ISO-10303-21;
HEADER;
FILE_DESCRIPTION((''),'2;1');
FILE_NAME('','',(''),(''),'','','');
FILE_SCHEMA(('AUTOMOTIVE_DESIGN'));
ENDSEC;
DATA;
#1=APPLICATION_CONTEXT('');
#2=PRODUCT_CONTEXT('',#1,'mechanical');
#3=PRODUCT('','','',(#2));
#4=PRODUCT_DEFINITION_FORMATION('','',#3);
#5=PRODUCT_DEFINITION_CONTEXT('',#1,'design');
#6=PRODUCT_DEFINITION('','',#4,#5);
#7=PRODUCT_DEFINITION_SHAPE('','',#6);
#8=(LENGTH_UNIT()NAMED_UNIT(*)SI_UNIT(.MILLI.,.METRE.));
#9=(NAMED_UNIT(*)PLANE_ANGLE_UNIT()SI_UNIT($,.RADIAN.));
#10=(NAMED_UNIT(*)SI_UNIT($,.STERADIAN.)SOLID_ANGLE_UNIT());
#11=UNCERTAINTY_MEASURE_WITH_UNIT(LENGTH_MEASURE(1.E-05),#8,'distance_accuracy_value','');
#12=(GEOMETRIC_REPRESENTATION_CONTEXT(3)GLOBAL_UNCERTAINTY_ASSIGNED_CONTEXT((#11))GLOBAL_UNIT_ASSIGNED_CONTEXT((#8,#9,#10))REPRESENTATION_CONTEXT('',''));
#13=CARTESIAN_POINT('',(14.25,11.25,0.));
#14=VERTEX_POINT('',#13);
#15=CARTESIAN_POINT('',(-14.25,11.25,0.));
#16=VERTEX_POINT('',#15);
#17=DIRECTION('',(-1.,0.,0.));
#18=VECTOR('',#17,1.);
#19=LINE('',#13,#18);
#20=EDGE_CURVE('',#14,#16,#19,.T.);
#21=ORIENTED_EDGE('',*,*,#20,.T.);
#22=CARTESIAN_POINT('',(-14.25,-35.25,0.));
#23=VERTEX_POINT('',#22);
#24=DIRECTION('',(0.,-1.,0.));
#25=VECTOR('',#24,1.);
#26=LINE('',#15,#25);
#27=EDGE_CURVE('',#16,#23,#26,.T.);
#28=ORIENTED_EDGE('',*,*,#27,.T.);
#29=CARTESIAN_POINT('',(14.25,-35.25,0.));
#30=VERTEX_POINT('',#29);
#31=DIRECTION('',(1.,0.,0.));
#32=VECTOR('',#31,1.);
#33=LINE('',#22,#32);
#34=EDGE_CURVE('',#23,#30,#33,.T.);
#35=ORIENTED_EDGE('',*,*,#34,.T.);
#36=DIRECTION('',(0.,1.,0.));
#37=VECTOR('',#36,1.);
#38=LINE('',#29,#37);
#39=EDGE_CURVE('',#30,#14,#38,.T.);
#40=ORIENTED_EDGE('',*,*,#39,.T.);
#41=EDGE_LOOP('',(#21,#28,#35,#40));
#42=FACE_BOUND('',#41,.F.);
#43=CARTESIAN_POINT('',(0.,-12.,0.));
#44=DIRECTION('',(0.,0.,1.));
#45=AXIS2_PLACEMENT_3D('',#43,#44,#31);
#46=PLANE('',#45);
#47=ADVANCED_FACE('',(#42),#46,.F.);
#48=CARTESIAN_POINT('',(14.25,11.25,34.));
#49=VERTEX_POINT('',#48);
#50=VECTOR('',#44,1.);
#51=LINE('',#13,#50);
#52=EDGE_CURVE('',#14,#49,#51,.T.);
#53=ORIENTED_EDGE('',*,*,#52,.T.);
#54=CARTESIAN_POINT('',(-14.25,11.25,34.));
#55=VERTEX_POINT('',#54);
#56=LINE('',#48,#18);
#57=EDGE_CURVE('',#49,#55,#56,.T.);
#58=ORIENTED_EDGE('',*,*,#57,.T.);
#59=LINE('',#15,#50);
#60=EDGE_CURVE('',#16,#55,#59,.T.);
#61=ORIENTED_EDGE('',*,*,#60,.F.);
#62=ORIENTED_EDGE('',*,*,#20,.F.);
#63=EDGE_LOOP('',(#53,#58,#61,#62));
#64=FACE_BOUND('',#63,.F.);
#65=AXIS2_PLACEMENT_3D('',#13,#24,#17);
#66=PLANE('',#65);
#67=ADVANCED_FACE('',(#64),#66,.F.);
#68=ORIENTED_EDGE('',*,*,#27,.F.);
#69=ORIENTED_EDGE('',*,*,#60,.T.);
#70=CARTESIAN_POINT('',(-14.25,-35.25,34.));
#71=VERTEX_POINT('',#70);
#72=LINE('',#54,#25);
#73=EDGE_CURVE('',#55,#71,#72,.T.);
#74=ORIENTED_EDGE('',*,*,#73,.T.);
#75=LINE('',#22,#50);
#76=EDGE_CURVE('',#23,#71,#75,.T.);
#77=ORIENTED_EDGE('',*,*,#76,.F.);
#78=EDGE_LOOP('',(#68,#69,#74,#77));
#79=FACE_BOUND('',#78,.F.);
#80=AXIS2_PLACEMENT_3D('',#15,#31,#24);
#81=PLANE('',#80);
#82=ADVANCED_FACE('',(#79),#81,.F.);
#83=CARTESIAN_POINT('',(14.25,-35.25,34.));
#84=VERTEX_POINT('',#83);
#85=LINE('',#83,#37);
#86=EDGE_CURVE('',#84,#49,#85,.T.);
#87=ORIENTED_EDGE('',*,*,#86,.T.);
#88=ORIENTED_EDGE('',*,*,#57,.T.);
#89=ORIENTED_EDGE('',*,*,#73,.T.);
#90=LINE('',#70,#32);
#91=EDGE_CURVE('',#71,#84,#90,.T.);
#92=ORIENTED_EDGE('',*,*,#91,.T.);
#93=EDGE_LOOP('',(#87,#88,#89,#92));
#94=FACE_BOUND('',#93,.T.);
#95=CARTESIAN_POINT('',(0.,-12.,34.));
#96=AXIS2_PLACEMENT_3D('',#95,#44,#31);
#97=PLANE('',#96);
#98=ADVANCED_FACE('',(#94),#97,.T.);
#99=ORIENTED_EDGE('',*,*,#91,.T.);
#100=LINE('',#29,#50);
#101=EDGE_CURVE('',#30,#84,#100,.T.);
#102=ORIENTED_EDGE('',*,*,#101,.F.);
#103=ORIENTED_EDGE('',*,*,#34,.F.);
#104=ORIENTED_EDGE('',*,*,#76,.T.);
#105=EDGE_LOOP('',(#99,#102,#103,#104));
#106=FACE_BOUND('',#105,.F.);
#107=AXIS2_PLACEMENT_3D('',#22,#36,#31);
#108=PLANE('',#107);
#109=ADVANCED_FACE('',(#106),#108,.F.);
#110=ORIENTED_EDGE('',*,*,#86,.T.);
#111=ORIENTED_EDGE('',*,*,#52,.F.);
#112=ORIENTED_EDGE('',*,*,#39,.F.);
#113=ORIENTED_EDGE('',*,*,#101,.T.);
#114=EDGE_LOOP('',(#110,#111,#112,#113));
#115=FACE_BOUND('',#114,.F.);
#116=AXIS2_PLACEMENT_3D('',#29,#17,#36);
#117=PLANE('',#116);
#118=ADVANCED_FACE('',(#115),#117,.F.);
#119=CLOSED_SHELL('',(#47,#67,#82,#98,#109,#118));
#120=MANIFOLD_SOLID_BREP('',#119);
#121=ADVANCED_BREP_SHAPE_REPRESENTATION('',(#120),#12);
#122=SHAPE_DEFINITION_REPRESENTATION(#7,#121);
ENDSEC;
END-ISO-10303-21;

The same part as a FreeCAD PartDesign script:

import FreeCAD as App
import Part
import Sketcher
from FreeCAD import Vector
Q = App.Units.Quantity


def add_polygon(sketch, points):
    """Adds a closed chain of lines whose ends are joined by coincident constraints."""
    first, n = sketch.GeometryCount, len(points)
    for a, b in zip(points, points[1:] + points[:1]):
        sketch.addGeometry(Part.LineSegment(App.Vector(*a, 0), App.Vector(*b, 0)), False)
    for i in range(n):
        sketch.addConstraint(Sketcher.Constraint("Coincident", first + i, 2, first + (i + 1) % n, 1))

doc = App.newDocument("Part")
body = doc.addObject("PartDesign::Body", "Body")

sketch1 = doc.addObject("Sketcher::SketchObject", "Sketch")
body.addObject(sketch1)
sketch1.AttachmentSupport = (doc.XY_Plane, [""])
sketch1.MapMode = "FlatFace"
add_polygon(sketch1, [(-14, 11), (-14, -35), (14, -35), (14, 11)])
sketch1.addConstraint([
    Sketcher.Constraint("Vertical", 0),
    Sketcher.Constraint("Horizontal", 1),
    Sketcher.Constraint("Vertical", 2),
    Sketcher.Constraint("Horizontal", 3),
    Sketcher.Constraint("DistanceX", 1, 1, 1, 2, Q("28.5 mm")),
    Sketcher.Constraint("DistanceY", 0, 2, 0, 1, Q("46.5 mm")),
    Sketcher.Constraint("DistanceX", 0, 2, -1, 1, Q("14.25 mm")),
    Sketcher.Constraint("DistanceY", 0, 2, -1, 1, Q("35.25 mm")),
])
pad1 = doc.addObject("PartDesign::Pad", "Pad")
body.addObject(pad1)
pad1.Profile = sketch1
pad1.Length = 34

doc.recompute()
